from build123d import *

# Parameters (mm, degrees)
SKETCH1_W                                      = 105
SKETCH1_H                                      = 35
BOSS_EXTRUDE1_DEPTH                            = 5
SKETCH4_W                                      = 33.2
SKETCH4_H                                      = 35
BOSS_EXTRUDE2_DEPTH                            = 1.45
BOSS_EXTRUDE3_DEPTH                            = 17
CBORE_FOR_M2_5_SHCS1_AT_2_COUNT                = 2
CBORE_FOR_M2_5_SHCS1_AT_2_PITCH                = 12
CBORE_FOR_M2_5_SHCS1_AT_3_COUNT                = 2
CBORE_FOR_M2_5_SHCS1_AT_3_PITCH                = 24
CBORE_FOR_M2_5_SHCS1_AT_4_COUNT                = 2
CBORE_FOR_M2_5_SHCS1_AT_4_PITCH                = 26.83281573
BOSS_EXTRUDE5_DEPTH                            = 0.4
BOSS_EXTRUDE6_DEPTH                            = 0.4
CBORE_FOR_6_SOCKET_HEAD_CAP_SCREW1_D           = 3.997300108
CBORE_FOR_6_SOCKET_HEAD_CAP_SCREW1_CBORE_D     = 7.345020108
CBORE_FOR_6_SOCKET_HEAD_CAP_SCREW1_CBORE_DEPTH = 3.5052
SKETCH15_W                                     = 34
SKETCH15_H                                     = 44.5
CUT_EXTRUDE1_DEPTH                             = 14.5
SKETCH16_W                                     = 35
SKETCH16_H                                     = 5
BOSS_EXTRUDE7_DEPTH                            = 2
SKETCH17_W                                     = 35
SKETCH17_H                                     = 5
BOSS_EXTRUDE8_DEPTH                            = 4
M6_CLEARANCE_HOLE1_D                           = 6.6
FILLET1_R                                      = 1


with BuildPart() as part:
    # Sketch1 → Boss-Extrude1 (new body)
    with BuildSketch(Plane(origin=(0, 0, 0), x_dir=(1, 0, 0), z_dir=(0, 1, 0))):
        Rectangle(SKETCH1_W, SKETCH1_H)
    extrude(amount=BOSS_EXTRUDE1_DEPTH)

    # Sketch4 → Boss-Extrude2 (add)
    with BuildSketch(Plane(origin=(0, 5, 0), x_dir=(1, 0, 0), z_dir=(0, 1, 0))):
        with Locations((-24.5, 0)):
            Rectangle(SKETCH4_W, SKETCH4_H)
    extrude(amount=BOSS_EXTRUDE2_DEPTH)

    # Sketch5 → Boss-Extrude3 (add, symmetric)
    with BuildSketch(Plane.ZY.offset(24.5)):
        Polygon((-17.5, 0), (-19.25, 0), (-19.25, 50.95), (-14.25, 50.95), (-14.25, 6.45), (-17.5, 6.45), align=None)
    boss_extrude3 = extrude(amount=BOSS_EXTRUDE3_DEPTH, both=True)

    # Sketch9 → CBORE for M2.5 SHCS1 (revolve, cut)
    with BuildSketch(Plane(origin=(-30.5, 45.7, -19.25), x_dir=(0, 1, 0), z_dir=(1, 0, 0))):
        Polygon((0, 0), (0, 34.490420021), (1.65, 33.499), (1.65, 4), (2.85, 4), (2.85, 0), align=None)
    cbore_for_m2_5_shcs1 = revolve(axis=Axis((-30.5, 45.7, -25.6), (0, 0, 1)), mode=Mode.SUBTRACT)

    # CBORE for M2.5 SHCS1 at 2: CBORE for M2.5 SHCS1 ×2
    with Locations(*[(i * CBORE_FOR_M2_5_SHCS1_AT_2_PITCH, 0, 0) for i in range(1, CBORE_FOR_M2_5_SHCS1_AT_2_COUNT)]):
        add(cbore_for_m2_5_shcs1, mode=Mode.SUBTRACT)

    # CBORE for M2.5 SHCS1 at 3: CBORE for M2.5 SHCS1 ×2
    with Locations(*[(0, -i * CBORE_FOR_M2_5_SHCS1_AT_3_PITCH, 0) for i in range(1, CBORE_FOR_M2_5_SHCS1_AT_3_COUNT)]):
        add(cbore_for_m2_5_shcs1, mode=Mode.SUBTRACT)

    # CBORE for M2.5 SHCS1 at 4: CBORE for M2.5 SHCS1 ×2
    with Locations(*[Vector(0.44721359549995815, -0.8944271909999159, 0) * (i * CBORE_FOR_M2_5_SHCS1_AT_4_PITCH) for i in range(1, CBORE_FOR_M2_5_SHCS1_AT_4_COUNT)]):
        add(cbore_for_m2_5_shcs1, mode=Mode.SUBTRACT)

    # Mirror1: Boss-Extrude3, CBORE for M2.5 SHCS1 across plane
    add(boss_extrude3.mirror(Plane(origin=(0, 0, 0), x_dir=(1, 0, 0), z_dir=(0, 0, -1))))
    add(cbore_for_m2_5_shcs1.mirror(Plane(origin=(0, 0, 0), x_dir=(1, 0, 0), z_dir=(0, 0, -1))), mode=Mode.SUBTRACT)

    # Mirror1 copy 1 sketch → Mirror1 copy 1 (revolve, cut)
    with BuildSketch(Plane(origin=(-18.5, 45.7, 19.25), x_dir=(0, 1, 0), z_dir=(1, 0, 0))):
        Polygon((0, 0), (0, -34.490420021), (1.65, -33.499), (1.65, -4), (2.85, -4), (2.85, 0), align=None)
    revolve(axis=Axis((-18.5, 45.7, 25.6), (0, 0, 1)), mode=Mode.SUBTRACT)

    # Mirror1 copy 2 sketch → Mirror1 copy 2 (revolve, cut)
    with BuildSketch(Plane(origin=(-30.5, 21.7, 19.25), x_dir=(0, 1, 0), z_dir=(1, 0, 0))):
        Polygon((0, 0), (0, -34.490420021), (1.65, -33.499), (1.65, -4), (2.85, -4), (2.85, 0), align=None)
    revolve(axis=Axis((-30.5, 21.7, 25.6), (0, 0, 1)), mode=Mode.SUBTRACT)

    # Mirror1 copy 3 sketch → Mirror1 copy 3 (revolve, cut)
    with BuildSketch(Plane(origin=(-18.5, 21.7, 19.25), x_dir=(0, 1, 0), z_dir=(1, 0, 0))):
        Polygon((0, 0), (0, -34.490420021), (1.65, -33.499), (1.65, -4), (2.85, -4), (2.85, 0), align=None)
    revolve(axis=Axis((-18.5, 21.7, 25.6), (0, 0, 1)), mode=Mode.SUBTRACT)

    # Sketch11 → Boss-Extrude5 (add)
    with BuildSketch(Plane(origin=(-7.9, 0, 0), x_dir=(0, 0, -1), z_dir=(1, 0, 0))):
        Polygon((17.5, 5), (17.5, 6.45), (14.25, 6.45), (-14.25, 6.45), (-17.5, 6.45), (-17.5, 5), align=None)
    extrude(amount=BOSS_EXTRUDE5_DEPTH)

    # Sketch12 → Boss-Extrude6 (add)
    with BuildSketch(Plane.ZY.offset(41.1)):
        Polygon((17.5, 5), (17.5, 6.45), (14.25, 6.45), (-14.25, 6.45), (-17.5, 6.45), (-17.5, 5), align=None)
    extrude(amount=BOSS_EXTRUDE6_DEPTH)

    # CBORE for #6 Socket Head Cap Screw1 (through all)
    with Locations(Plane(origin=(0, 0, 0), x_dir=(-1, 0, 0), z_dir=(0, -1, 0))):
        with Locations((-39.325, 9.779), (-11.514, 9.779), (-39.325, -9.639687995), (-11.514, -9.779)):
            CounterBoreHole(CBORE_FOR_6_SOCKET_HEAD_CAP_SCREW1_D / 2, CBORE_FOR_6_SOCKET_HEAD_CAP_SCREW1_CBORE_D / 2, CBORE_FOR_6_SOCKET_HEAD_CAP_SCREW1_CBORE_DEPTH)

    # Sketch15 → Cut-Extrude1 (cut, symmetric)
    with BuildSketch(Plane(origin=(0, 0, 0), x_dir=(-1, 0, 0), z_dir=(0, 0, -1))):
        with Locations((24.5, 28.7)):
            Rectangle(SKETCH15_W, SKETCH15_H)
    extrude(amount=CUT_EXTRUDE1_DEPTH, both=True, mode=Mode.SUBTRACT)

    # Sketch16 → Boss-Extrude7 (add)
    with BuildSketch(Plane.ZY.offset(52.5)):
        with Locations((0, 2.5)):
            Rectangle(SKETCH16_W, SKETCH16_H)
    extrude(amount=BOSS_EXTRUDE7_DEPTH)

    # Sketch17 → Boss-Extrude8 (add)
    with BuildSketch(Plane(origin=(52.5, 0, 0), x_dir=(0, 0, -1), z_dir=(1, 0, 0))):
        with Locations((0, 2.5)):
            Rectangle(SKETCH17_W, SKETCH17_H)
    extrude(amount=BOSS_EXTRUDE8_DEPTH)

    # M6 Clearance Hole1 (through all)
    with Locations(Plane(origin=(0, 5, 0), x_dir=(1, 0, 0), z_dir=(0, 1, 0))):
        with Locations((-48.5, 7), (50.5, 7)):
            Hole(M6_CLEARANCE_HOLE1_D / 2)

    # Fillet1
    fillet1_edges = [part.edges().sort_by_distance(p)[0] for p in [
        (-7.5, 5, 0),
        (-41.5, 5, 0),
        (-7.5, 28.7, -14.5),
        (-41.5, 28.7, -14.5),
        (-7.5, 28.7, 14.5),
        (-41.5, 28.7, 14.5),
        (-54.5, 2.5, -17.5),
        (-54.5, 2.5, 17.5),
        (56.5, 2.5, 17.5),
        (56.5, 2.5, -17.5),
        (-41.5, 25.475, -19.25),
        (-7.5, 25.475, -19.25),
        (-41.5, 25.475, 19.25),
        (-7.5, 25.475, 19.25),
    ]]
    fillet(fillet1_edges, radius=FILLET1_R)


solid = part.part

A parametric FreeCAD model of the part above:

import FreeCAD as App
import Part
import Sketcher
from FreeCAD import Vector
Q = App.Units.Quantity


def edges_at(feature, points):
    """Names of the edges that pass closest to the given points."""
    edges = feature.Shape.Edges
    near = lambda p: min(range(len(edges)), key=lambda i: edges[i].distToShape(Part.Vertex(*p))[0])
    return sorted({f"Edge{near(p) + 1}" for p in points})


def add_polygon(sketch, points):
    """Adds a closed chain of lines whose ends are joined by coincident constraints."""
    first, n = sketch.GeometryCount, len(points)
    for a, b in zip(points, points[1:] + points[:1]):
        sketch.addGeometry(Part.LineSegment(App.Vector(*a, 0), App.Vector(*b, 0)), False)
    for i in range(n):
        sketch.addConstraint(Sketcher.Constraint("Coincident", first + i, 2, first + (i + 1) % n, 1))

doc = App.newDocument("Part")
body = doc.addObject("PartDesign::Body", "Body")

sketch1 = body.newObject("Sketcher::SketchObject", "Sketch")
sketch1.AttachmentSupport = (doc.getObject("XZ_Plane"), [""])
sketch1.MapMode = "FlatFace"
add_polygon(sketch1, [(-52, -18), (-52, 18), (52, 18), (52, -18)])
sketch1.addConstraint([
    Sketcher.Constraint("Vertical", 0),
    Sketcher.Constraint("Horizontal", 1),
    Sketcher.Constraint("Vertical", 2),
    Sketcher.Constraint("Horizontal", 3),
    Sketcher.Constraint("Symmetric", 0, 2, 2, 2, -1, 1),
    Sketcher.Constraint("DistanceX", 1, 1, 1, 2, 105.0),
    Sketcher.Constraint("DistanceY", 0, 1, 0, 2, 35.0),
])
pad1 = body.newObject("PartDesign::Pad", "Pad")
pad1.Profile = sketch1
pad1.Length = 5
pad1.Reversed = True

sketch2 = body.newObject("Sketcher::SketchObject", "Sketch001")
sketch2.AttachmentSupport = (doc.getObject("XZ_Plane"), [""])
sketch2.MapMode = "FlatFace"
sketch2.AttachmentOffset = App.Placement(Vector(0, 0, -5), App.Rotation())
add_polygon(sketch2, [(-41, -18), (-41, 18), (-8, 18), (-8, -18)])
sketch2.addConstraint([
    Sketcher.Constraint("Vertical", 0),
    Sketcher.Constraint("Horizontal", 1),
    Sketcher.Constraint("Vertical", 2),
    Sketcher.Constraint("Horizontal", 3),
    Sketcher.Constraint("DistanceY", 0, 1, 0, 2, 35.0),
    Sketcher.Constraint("DistanceX", 1, 1, 1, 2, 33.2),
    Sketcher.Constraint("DistanceX", 0, 2, -1, 1, 41.1),
    Sketcher.Constraint("DistanceY", -1, 1, 0, 2, 17.5),
])
pad2 = body.newObject("PartDesign::Pad", "Pad001")
pad2.Profile = sketch2
pad2.Length = 1.45
pad2.Reversed = True

sketch3 = body.newObject("Sketcher::SketchObject", "Sketch002")
sketch3.AttachmentSupport = (doc.getObject("YZ_Plane"), [""])
sketch3.MapMode = "FlatFace"
sketch3.AttachmentOffset = App.Placement(Vector(0, 0, -24.5), App.Rotation())
add_polygon(sketch3, [(0, -19.2), (0, -17.5), (6.5, -17.5), (6.5, -14.2), (51, -14.2), (51, -19.2)])
sketch3.addConstraint([
    Sketcher.Constraint("Vertical", 0),
    Sketcher.Constraint("Horizontal", 1),
    Sketcher.Constraint("Vertical", 2),
    Sketcher.Constraint("Horizontal", 3),
    Sketcher.Constraint("Vertical", 4),
    Sketcher.Constraint("Horizontal", 5),
    Sketcher.Constraint("PointOnObject", 0, 2, -2),
    Sketcher.Constraint("DistanceY", 4, 2, 4, 1, 5.0),
    Sketcher.Constraint("DistanceX", 3, 1, 3, 2, 44.5),
    Sketcher.Constraint("DistanceX", 1, 1, 1, 2, 6.45),
    Sketcher.Constraint("DistanceY", 0, 1, 0, 2, 1.75),
    Sketcher.Constraint("DistanceY", 0, 2, -1, 1, 17.5),
])
pad3 = body.newObject("PartDesign::Pad", "Pad002")
pad3.Profile = sketch3
pad3.Length = 34
pad3.Midplane = True

sketch4 = body.newObject("Sketcher::SketchObject", "Sketch003")
sketch4.AttachmentSupport = (doc.getObject("YZ_Plane"), [""])
sketch4.MapMode = "FlatFace"
sketch4.AttachmentOffset = App.Placement(Vector(0, 0, -30.5), App.Rotation())
add_polygon(sketch4, [(45.7, 15.2), (45.7, -19.2), (48.5, -19.2), (48.5, -15.2), (47.4, -15.2), (47.4, 14.2)])
sketch4.addGeometry(Part.LineSegment(Vector(45.7, -19.2, 0), Vector(45.7, 15.2, 0)), True)
sketch4.addConstraint([
    Sketcher.Constraint("Vertical", 0),
    Sketcher.Constraint("Horizontal", 1),
    Sketcher.Constraint("Vertical", 2),
    Sketcher.Constraint("Horizontal", 3),
    Sketcher.Constraint("Vertical", 4),
    Sketcher.Constraint("Vertical", 6),
    Sketcher.Constraint("Coincident", 6, 1, 0, 2),
    Sketcher.Constraint("Equal", 0, 6),
    Sketcher.Constraint("DistanceY", 2, 1, 2, 2, 4.0),
    Sketcher.Constraint("Angle", 5, Q("149 deg")),
    Sketcher.Constraint("DistanceX", 3, 2, 3, 1, 1.2),
    Sketcher.Constraint("DistanceX", 1, 1, 1, 2, 2.85),
    Sketcher.Constraint("DistanceX", -1, 1, 0, 2, 45.7),
    Sketcher.Constraint("DistanceY", 4, 1, 4, 2, 29.499),
    Sketcher.Constraint("DistanceY", 0, 2, -1, 1, 19.25),
])
groove = body.newObject("PartDesign::Groove", "Groove")
groove.Profile = sketch4
groove.ReferenceAxis = (sketch4, ["Axis0"])
groove.Angle = 360
doc.recompute()

linearpattern = body.newObject("PartDesign::LinearPattern", "LinearPattern")
linearpattern.Originals = [groove]
linearpattern.Direction = (doc.getObject("X_Axis"), [""])
linearpattern.Mode = "offset"
linearpattern.Offset = 12
linearpattern.Occurrences = 2
body.Tip = linearpattern
doc.recompute()

linearpattern2 = body.newObject("PartDesign::LinearPattern", "LinearPattern001")
linearpattern2.Originals = [groove]
linearpattern2.Direction = (doc.getObject("Y_Axis"), [""])
linearpattern2.Mode = "offset"
linearpattern2.Offset = 24
linearpattern2.Occurrences = 2
linearpattern2.Reversed = True
body.Tip = linearpattern2
doc.recompute()

datumline = body.newObject("PartDesign::Line", "DatumLine")
datumline.Placement = App.Placement(Vector(0, 0, 0), App.Rotation(Vector(0, 0, 1), Vector(0.447213595, -0.894427191, 0)))
linearpattern3 = body.newObject("PartDesign::LinearPattern", "LinearPattern002")
linearpattern3.Originals = [groove]
linearpattern3.Direction = (datumline, [""])
linearpattern3.Mode = "offset"
linearpattern3.Offset = 26.832816
linearpattern3.Occurrences = 2
body.Tip = linearpattern3
doc.recompute()

mirrored = body.newObject("PartDesign::Mirrored", "Mirrored")
mirrored.Originals = [pad3, groove]
mirrored.MirrorPlane = (doc.getObject("XY_Plane"), [""])
body.Tip = mirrored

sketch5 = body.newObject("Sketcher::SketchObject", "Sketch004")
sketch5.AttachmentSupport = (doc.getObject("YZ_Plane"), [""])
sketch5.MapMode = "FlatFace"
sketch5.AttachmentOffset = App.Placement(Vector(0, 0, -18.5), App.Rotation())
add_polygon(sketch5, [(45.7, 19.2), (45.7, -15.2), (47.4, -14.2), (47.4, 15.2), (48.5, 15.2), (48.5, 19.2)])
sketch5.addGeometry(Part.LineSegment(Vector(45.7, -15.2, 0), Vector(45.7, 19.2, 0)), True)
sketch5.addConstraint([
    Sketcher.Constraint("Vertical", 0),
    Sketcher.Constraint("Vertical", 2),
    Sketcher.Constraint("Horizontal", 3),
    Sketcher.Constraint("Vertical", 4),
    Sketcher.Constraint("Horizontal", 5),
    Sketcher.Constraint("Vertical", 6),
    Sketcher.Constraint("Coincident", 6, 1, 0, 2),
    Sketcher.Constraint("Horizontal", 4, 2, 6, 2),
    Sketcher.Constraint("DistanceY", 4, 1, 4, 2, 4.0),
    Sketcher.Constraint("Angle", 1, Q("31 deg")),
    Sketcher.Constraint("DistanceX", 3, 1, 3, 2, 1.2),
    Sketcher.Constraint("DistanceX", 5, 2, 5, 1, 2.85),
    Sketcher.Constraint("DistanceX", -1, 1, 0, 2, 45.7),
    Sketcher.Constraint("DistanceY", 2, 1, 2, 2, 29.499),
    Sketcher.Constraint("DistanceY", -1, 1, 2, 2, 15.25),
])
groove2 = body.newObject("PartDesign::Groove", "Groove001")
groove2.Profile = sketch5
groove2.ReferenceAxis = (sketch5, ["Axis0"])
groove2.Angle = 360

sketch6 = body.newObject("Sketcher::SketchObject", "Sketch005")
sketch6.AttachmentSupport = (doc.getObject("YZ_Plane"), [""])
sketch6.MapMode = "FlatFace"
sketch6.AttachmentOffset = App.Placement(Vector(0, 0, -30.5), App.Rotation())
add_polygon(sketch6, [(21.7, 19.2), (21.7, -15.2), (23.4, -14.2), (23.4, 15.2), (24.6, 15.2), (24.6, 19.2)])
sketch6.addGeometry(Part.LineSegment(Vector(21.7, -15.2, 0), Vector(21.7, 19.2, 0)), True)
sketch6.addConstraint([
    Sketcher.Constraint("Vertical", 0),
    Sketcher.Constraint("Vertical", 2),
    Sketcher.Constraint("Horizontal", 3),
    Sketcher.Constraint("Vertical", 4),
    Sketcher.Constraint("Horizontal", 5),
    Sketcher.Constraint("Vertical", 6),
    Sketcher.Constraint("Coincident", 6, 1, 0, 2),
    Sketcher.Constraint("Horizontal", 4, 2, 6, 2),
    Sketcher.Constraint("DistanceY", 4, 1, 4, 2, 4.0),
    Sketcher.Constraint("Angle", 1, Q("31 deg")),
    Sketcher.Constraint("DistanceX", 3, 1, 3, 2, 1.2),
    Sketcher.Constraint("DistanceX", 5, 2, 5, 1, 2.85),
    Sketcher.Constraint("DistanceX", -1, 1, 0, 2, 21.7),
    Sketcher.Constraint("DistanceY", 2, 1, 2, 2, 29.499),
    Sketcher.Constraint("DistanceY", -1, 1, 2, 2, 15.25),
])
groove3 = body.newObject("PartDesign::Groove", "Groove002")
groove3.Profile = sketch6
groove3.ReferenceAxis = (sketch6, ["Axis0"])
groove3.Angle = 360

sketch7 = body.newObject("Sketcher::SketchObject", "Sketch006")
sketch7.AttachmentSupport = (doc.getObject("YZ_Plane"), [""])
sketch7.MapMode = "FlatFace"
sketch7.AttachmentOffset = App.Placement(Vector(0, 0, -18.5), App.Rotation())
add_polygon(sketch7, [(21.7, 19.2), (21.7, -15.2), (23.4, -14.2), (23.4, 15.2), (24.6, 15.2), (24.6, 19.2)])
sketch7.addGeometry(Part.LineSegment(Vector(21.7, -15.2, 0), Vector(21.7, 19.2, 0)), True)
sketch7.addConstraint([
    Sketcher.Constraint("Vertical", 0),
    Sketcher.Constraint("Vertical", 2),
    Sketcher.Constraint("Horizontal", 3),
    Sketcher.Constraint("Vertical", 4),
    Sketcher.Constraint("Horizontal", 5),
    Sketcher.Constraint("Vertical", 6),
    Sketcher.Constraint("Coincident", 6, 1, 0, 2),
    Sketcher.Constraint("Horizontal", 4, 2, 6, 2),
    Sketcher.Constraint("DistanceY", 4, 1, 4, 2, 4.0),
    Sketcher.Constraint("Angle", 1, Q("31 deg")),
    Sketcher.Constraint("DistanceX", 3, 1, 3, 2, 1.2),
    Sketcher.Constraint("DistanceX", 5, 2, 5, 1, 2.85),
    Sketcher.Constraint("DistanceX", -1, 1, 0, 2, 21.7),
    Sketcher.Constraint("DistanceY", 2, 1, 2, 2, 29.499),
    Sketcher.Constraint("DistanceY", -1, 1, 2, 2, 15.25),
])
groove4 = body.newObject("PartDesign::Groove", "Groove003")
groove4.Profile = sketch7
groove4.ReferenceAxis = (sketch7, ["Axis0"])
groove4.Angle = 360

sketch8 = body.newObject("Sketcher::SketchObject", "Sketch007")
sketch8.AttachmentSupport = (doc.getObject("YZ_Plane"), [""])
sketch8.MapMode = "FlatFace"
sketch8.AttachmentOffset = App.Placement(Vector(0, 0, -7.9), App.Rotation())
add_polygon(sketch8, [(5, -17.5), (6.5, -17.5), (6.5, 17.5), (5, 17.5)])
sketch8.addConstraint([
    Sketcher.Constraint("Horizontal", 0),
    Sketcher.Constraint("Vertical", 1),
    Sketcher.Constraint("Horizontal", 2),
    Sketcher.Constraint("Vertical", 3),
    Sketcher.Constraint("DistanceY", 1, 1, 1, 2, 35.0),
    Sketcher.Constraint("DistanceX", -1, 1, 2, 2, 5.0),
    Sketcher.Constraint("DistanceX", 0, 1, 0, 2, 1.45),
    Sketcher.Constraint("DistanceY", 0, 2, -1, 1, 17.5),
])
pad4 = body.newObject("PartDesign::Pad", "Pad003")
pad4.Profile = sketch8
pad4.Length = 0.4

sketch9 = body.newObject("Sketcher::SketchObject", "Sketch008")
sketch9.AttachmentSupport = (doc.getObject("YZ_Plane"), [""])
sketch9.MapMode = "FlatFace"
sketch9.AttachmentOffset = App.Placement(Vector(0, 0, -41.1), App.Rotation())
add_polygon(sketch9, [(5, 17.5), (6.5, 17.5), (6.5, -17.5), (5, -17.5)])
sketch9.addConstraint([
    Sketcher.Constraint("Horizontal", 0),
    Sketcher.Constraint("Vertical", 1),
    Sketcher.Constraint("Horizontal", 2),
    Sketcher.Constraint("Vertical", 3),
    Sketcher.Constraint("DistanceY", 1, 2, 1, 1, 35.0),
    Sketcher.Constraint("DistanceX", -1, 1, 2, 2, 5.0),
    Sketcher.Constraint("DistanceX", 0, 1, 0, 2, 1.45),
    Sketcher.Constraint("DistanceY", -1, 1, 0, 2, 17.5),
])
pad5 = body.newObject("PartDesign::Pad", "Pad004")
pad5.Profile = sketch9
pad5.Length = 0.4
pad5.Reversed = True

sketch10 = body.newObject("Sketcher::SketchObject", "Sketch009")
sketch10.AttachmentSupport = (doc.getObject("XZ_Plane"), [""])
sketch10.MapMode = "FlatFace"
sketch10.addGeometry([
    Part.Circle(Vector(39.3, -9.8, 0), Vector(0, 0, 1), 2),
    Part.Circle(Vector(11.5, -9.8, 0), Vector(0, 0, 1), 2),
    Part.Circle(Vector(39.3, 9.6, 0), Vector(0, 0, 1), 2),
    Part.Circle(Vector(11.5, 9.8, 0), Vector(0, 0, 1), 2),
], False)
sketch10.addConstraint([
    Sketcher.Constraint("Equal", 0, 1),
    Sketcher.Constraint("Equal", 1, 2),
    Sketcher.Constraint("Equal", 2, 3),
    Sketcher.Constraint("Symmetric", 1, 3, 3, 3, -1),
    Sketcher.Constraint("Horizontal", 0, 3, 1, 3),
    Sketcher.Constraint("Vertical", 0, 3, 2, 3),
    Sketcher.Constraint("Diameter", 0, 3.9973),
    Sketcher.Constraint("DistanceX", -1, 1, 0, 3, 39.325),
    Sketcher.Constraint("DistanceY", 0, 3, -1, 1, 9.779),
    Sketcher.Constraint("DistanceX", -1, 1, 1, 3, 11.514),
    Sketcher.Constraint("DistanceY", -1, 1, 2, 3, 9.639688),
])
doc.recompute()
hole = body.newObject("PartDesign::Hole", "Hole")
hole.Profile = sketch10
hole.ThreadType = "None"
hole.Diameter = 3.9973
hole.DepthType = "ThroughAll"
hole.HoleCutType = "Counterbore"
hole.HoleCutDiameter = 7.34502
hole.HoleCutDepth = 3.5052

sketch11 = body.newObject("Sketcher::SketchObject", "Sketch010")
sketch11.AttachmentSupport = (doc.getObject("XY_Plane"), [""])
sketch11.MapMode = "FlatFace"
add_polygon(sketch11, [(-8, 51), (-8, 6), (-42, 6), (-42, 51)])
sketch11.addConstraint([
    Sketcher.Constraint("Vertical", 0),
    Sketcher.Constraint("Horizontal", 1),
    Sketcher.Constraint("Vertical", 2),
    Sketcher.Constraint("Horizontal", 3),
    Sketcher.Constraint("DistanceX", 1, 2, 1, 1, 34.0),
    Sketcher.Constraint("DistanceY", 0, 2, 0, 1, 44.5),
    Sketcher.Constraint("DistanceX", 0, 2, -1, 1, 7.5),
    Sketcher.Constraint("DistanceY", -1, 1, 0, 2, 6.45),
])
pocket1 = body.newObject("PartDesign::Pocket", "Pocket")
pocket1.Profile = sketch11
pocket1.Length = 29
pocket1.Midplane = True

sketch12 = body.newObject("Sketcher::SketchObject", "Sketch011")
sketch12.AttachmentSupport = (doc.getObject("YZ_Plane"), [""])
sketch12.MapMode = "FlatFace"
sketch12.AttachmentOffset = App.Placement(Vector(0, 0, -52.5), App.Rotation())
add_polygon(sketch12, [(5, -18), (0, -18), (0, 18), (5, 18)])
sketch12.addConstraint([
    Sketcher.Constraint("Horizontal", 0),
    Sketcher.Constraint("Vertical", 1),
    Sketcher.Constraint("Horizontal", 2),
    Sketcher.Constraint("Vertical", 3),
    Sketcher.Constraint("Symmetric", 0, 2, 1, 2, -1, 1),
    Sketcher.Constraint("DistanceX", 0, 2, 0, 1, 5.0),
    Sketcher.Constraint("DistanceY", 1, 1, 1, 2, 35.0),
])
pad6 = body.newObject("PartDesign::Pad", "Pad005")
pad6.Profile = sketch12
pad6.Length = 2
pad6.Reversed = True

sketch13 = body.newObject("Sketcher::SketchObject", "Sketch012")
sketch13.AttachmentSupport = (doc.getObject("YZ_Plane"), [""])
sketch13.MapMode = "FlatFace"
sketch13.AttachmentOffset = App.Placement(Vector(0, 0, 52.5), App.Rotation())
add_polygon(sketch13, [(5, 18), (0, 18), (0, -18), (5, -18)])
sketch13.addConstraint([
    Sketcher.Constraint("Horizontal", 0),
    Sketcher.Constraint("Vertical", 1),
    Sketcher.Constraint("Horizontal", 2),
    Sketcher.Constraint("Vertical", 3),
    Sketcher.Constraint("Symmetric", 0, 2, 1, 2, -1, 1),
    Sketcher.Constraint("DistanceX", 0, 2, 0, 1, 5.0),
    Sketcher.Constraint("DistanceY", 1, 2, 1, 1, 35.0),
])
pad7 = body.newObject("PartDesign::Pad", "Pad006")
pad7.Profile = sketch13
pad7.Length = 4

sketch14 = body.newObject("Sketcher::SketchObject", "Sketch013")
sketch14.AttachmentSupport = (doc.getObject("XZ_Plane"), [""])
sketch14.MapMode = "FlatFace"
sketch14.AttachmentOffset = App.Placement(Vector(0, 0, -5), App.Rotation())
sketch14.addGeometry([
    Part.Circle(Vector(-48.5, -7, 0), Vector(0, 0, 1), 3.3),
    Part.Circle(Vector(50.5, -7, 0), Vector(0, 0, 1), 3.3),
], False)
sketch14.addConstraint([
    Sketcher.Constraint("Equal", 0, 1),
    Sketcher.Constraint("Horizontal", 0, 3, 1, 3),
    Sketcher.Constraint("Diameter", 0, 6.6),
    Sketcher.Constraint("DistanceY", 0, 3, -1, 1, 7.0),
    Sketcher.Constraint("DistanceX", 0, 3, 1, 3, 99.0),
    Sketcher.Constraint("DistanceX", 0, 3, -1, 1, 48.5),
])
doc.recompute()
hole2 = body.newObject("PartDesign::Hole", "Hole001")
hole2.Profile = sketch14
hole2.ThreadType = "None"
hole2.Diameter = 6.6
hole2.DepthType = "ThroughAll"
hole2.Reversed = True
doc.recompute()

fillet = body.newObject("PartDesign::Fillet", "Fillet")
fillet.Base = (hole2, edges_at(hole2, [
    (-7.5, 5, 0),
    (-41.5, 5, 0),
    (-7.5, 28.7, -14.5),
    (-41.5, 28.7, -14.5),
    (-7.5, 28.7, 14.5),
    (-41.5, 28.7, 14.5),
    (-54.5, 2.5, -17.5),
    (-54.5, 2.5, 17.5),
    (56.5, 2.5, 17.5),
    (56.5, 2.5, -17.5),
    (-41.5, 25.475, -19.25),
    (-7.5, 25.475, -19.25),
    (-41.5, 25.475, 19.25),
    (-7.5, 25.475, 19.25),
]))
fillet.Radius = 1

doc.recompute()
